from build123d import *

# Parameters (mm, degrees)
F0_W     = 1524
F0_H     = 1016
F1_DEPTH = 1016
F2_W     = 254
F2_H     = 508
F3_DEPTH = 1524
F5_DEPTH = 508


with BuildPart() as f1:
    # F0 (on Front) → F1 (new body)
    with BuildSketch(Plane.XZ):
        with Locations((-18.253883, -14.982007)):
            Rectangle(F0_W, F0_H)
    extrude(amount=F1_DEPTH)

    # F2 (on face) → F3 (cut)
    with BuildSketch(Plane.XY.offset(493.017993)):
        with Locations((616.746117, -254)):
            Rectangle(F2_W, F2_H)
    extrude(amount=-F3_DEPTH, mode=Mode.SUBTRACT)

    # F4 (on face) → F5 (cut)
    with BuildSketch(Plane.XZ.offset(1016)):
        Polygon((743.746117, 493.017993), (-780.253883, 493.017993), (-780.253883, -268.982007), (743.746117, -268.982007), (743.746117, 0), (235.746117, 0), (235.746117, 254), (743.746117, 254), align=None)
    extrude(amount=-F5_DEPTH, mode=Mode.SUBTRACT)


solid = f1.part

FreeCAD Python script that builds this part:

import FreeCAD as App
import Part
import Sketcher

V = App.Vector
Q = App.Units.Quantity

doc = App.newDocument("Part")
body = doc.addObject("PartDesign::Body", "Body")

# Sketch on XZ plane
sketch1 = body.newObject("Sketcher::SketchObject", "Sketch")
sketch1.AttachmentSupport = (doc.getObject("XZ_Plane"), [""])
sketch1.MapMode = "FlatFace"
sketch1.addGeometry(Part.LineSegment(V(-780, 493, 0), V(-780, -523, 0)), False)
sketch1.addGeometry(Part.LineSegment(V(-780, -523, 0), V(744, -523, 0)), False)
sketch1.addGeometry(Part.LineSegment(V(744, -523, 0), V(744, 493, 0)), False)
sketch1.addGeometry(Part.LineSegment(V(744, 493, 0), V(-780, 493, 0)), False)
sketch1.addConstraint(Sketcher.Constraint("Coincident", 0, 2, 1, 1))
sketch1.addConstraint(Sketcher.Constraint("Coincident", 1, 2, 2, 1))
sketch1.addConstraint(Sketcher.Constraint("Coincident", 2, 2, 3, 1))
sketch1.addConstraint(Sketcher.Constraint("Coincident", 3, 2, 0, 1))
sketch1.addConstraint(Sketcher.Constraint("Vertical", 0))
sketch1.addConstraint(Sketcher.Constraint("Horizontal", 1))
sketch1.addConstraint(Sketcher.Constraint("Vertical", 2))
sketch1.addConstraint(Sketcher.Constraint("Horizontal", 3))
sketch1.addConstraint(Sketcher.Constraint("DistanceX", 1, 1, 1, 2, Q("60 in")))
sketch1.addConstraint(Sketcher.Constraint("DistanceY", 0, 2, 0, 1, Q("40 in")))
sketch1.addConstraint(Sketcher.Constraint("DistanceX", 0, 2, -1, 1, 780.253883))
sketch1.addConstraint(Sketcher.Constraint("DistanceY", 0, 2, -1, 1, 522.982007))
pad1 = body.newObject("PartDesign::Pad", "Pad")
pad1.Profile = sketch1
pad1.Length = Q("40 in")

# Sketch on XY plane
sketch2 = body.newObject("Sketcher::SketchObject", "Sketch001")
sketch2.AttachmentSupport = (doc.getObject("XY_Plane"), [""])
sketch2.MapMode = "FlatFace"
sketch2.AttachmentOffset = App.Placement(V(0, 0, 493.017993), App.Rotation())
sketch2.addGeometry(Part.LineSegment(V(490, 0, 0), V(490, -508, 0)), False)
sketch2.addGeometry(Part.LineSegment(V(490, -508, 0), V(744, -508, 0)), False)
sketch2.addGeometry(Part.LineSegment(V(744, -508, 0), V(744, 0, 0)), False)
sketch2.addGeometry(Part.LineSegment(V(744, 0, 0), V(490, 0, 0)), False)
sketch2.addConstraint(Sketcher.Constraint("Coincident", 0, 2, 1, 1))
sketch2.addConstraint(Sketcher.Constraint("Coincident", 1, 2, 2, 1))
sketch2.addConstraint(Sketcher.Constraint("Coincident", 2, 2, 3, 1))
sketch2.addConstraint(Sketcher.Constraint("Coincident", 3, 2, 0, 1))
sketch2.addConstraint(Sketcher.Constraint("Vertical", 0))
sketch2.addConstraint(Sketcher.Constraint("Horizontal", 1))
sketch2.addConstraint(Sketcher.Constraint("Vertical", 2))
sketch2.addConstraint(Sketcher.Constraint("Horizontal", 3))
sketch2.addConstraint(Sketcher.Constraint("PointOnObject", 2, 2, -1))
sketch2.addConstraint(Sketcher.Constraint("DistanceX", 1, 1, 1, 2, Q("10 in")))
sketch2.addConstraint(Sketcher.Constraint("DistanceY", 0, 2, 0, 1, Q("20 in")))
sketch2.addConstraint(Sketcher.Constraint("DistanceX", -1, 1, 0, 2, 489.746117))
pocket1 = body.newObject("PartDesign::Pocket", "Pocket")
pocket1.Profile = sketch2
pocket1.Length = Q("60 in")

# Sketch on XZ plane
sketch3 = body.newObject("Sketcher::SketchObject", "Sketch002")
sketch3.AttachmentSupport = (doc.getObject("XZ_Plane"), [""])
sketch3.MapMode = "FlatFace"
sketch3.AttachmentOffset = App.Placement(V(0, 0, 40 * 25.4), App.Rotation())
sketch3.addGeometry(Part.LineSegment(V(744, 493, 0), V(-780, 493, 0)), False)
sketch3.addGeometry(Part.LineSegment(V(-780, 493, 0), V(-780, -269, 0)), False)
sketch3.addGeometry(Part.LineSegment(V(-780, -269, 0), V(744, -269, 0)), False)
sketch3.addGeometry(Part.LineSegment(V(744, -269, 0), V(744, 0, 0)), False)
sketch3.addGeometry(Part.LineSegment(V(744, 0, 0), V(236, 0, 0)), False)
sketch3.addGeometry(Part.LineSegment(V(236, 0, 0), V(236, 254, 0)), False)
sketch3.addGeometry(Part.LineSegment(V(236, 254, 0), V(744, 254, 0)), False)
sketch3.addGeometry(Part.LineSegment(V(744, 254, 0), V(744, 493, 0)), False)
sketch3.addConstraint(Sketcher.Constraint("Coincident", 0, 2, 1, 1))
sketch3.addConstraint(Sketcher.Constraint("Coincident", 1, 2, 2, 1))
sketch3.addConstraint(Sketcher.Constraint("Coincident", 2, 2, 3, 1))
sketch3.addConstraint(Sketcher.Constraint("Coincident", 3, 2, 4, 1))
sketch3.addConstraint(Sketcher.Constraint("Coincident", 4, 2, 5, 1))
sketch3.addConstraint(Sketcher.Constraint("Coincident", 5, 2, 6, 1))
sketch3.addConstraint(Sketcher.Constraint("Coincident", 6, 2, 7, 1))
sketch3.addConstraint(Sketcher.Constraint("Coincident", 7, 2, 0, 1))
sketch3.addConstraint(Sketcher.Constraint("Horizontal", 0))
sketch3.addConstraint(Sketcher.Constraint("Vertical", 1))
sketch3.addConstraint(Sketcher.Constraint("Horizontal", 2))
sketch3.addConstraint(Sketcher.Constraint("Vertical", 3))
sketch3.addConstraint(Sketcher.Constraint("Horizontal", 4))
sketch3.addConstraint(Sketcher.Constraint("Vertical", 5))
sketch3.addConstraint(Sketcher.Constraint("Horizontal", 6))
sketch3.addConstraint(Sketcher.Constraint("Vertical", 7))
sketch3.addConstraint(Sketcher.Constraint("PointOnObject", 3, 2, -1))
sketch3.addConstraint(Sketcher.Constraint("Vertical", 3, 2, 6, 2))
sketch3.addConstraint(Sketcher.Constraint("DistanceX", 0, 2, 0, 1, Q("60 in")))
sketch3.addConstraint(Sketcher.Constraint("DistanceX", 4, 2, 4, 1, Q("20 in")))
sketch3.addConstraint(Sketcher.Constraint("DistanceY", 1, 2, 1, 1, Q("30 in")))
sketch3.addConstraint(Sketcher.Constraint("DistanceY", 5, 1, 5, 2, Q("10 in")))
sketch3.addConstraint(Sketcher.Constraint("DistanceY", 3, 1, 3, 2, 268.982007))
sketch3.addConstraint(Sketcher.Constraint("DistanceX", 0, 2, -1, 1, 780.253883))
pocket2 = body.newObject("PartDesign::Pocket", "Pocket001")
pocket2.Profile = sketch3
pocket2.Length = Q("20 in")

doc.recompute()
